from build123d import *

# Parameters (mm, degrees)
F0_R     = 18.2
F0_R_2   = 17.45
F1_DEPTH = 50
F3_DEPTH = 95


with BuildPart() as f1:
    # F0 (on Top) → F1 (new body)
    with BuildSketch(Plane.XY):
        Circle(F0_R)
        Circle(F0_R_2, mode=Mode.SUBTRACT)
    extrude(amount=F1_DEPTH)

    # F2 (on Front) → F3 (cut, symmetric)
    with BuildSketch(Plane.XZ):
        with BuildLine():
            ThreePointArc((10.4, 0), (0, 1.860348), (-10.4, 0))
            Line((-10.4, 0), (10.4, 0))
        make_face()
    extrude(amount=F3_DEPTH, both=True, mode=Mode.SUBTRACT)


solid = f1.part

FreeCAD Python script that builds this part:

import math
import FreeCAD as App
import Part
import Sketcher
from FreeCAD import Vector

doc = App.newDocument("Part")
body = doc.addObject("PartDesign::Body", "Body")

# Sketch on XY plane
sketch1 = doc.addObject("Sketcher::SketchObject", "Sketch")
body.addObject(sketch1)
sketch1.AttachmentSupport = (doc.XY_Plane, [""])
sketch1.MapMode = "FlatFace"
sketch1.addGeometry(Part.Circle(Vector(0, 0, 0), Vector(0, 0, 1), 18.2), False)
sketch1.addGeometry(Part.Circle(Vector(0, 0, 0), Vector(0, 0, 1), 17.45), False)
sketch1.addConstraint(Sketcher.Constraint("Coincident", 0, 3, -1, 1))
sketch1.addConstraint(Sketcher.Constraint("Coincident", 1, 3, -1, 1))
sketch1.addConstraint(Sketcher.Constraint("Diameter", 0, 36.4))
sketch1.addConstraint(Sketcher.Constraint("Diameter", 1, 34.9))
pad1 = doc.addObject("PartDesign::Pad", "Pad")
body.addObject(pad1)
pad1.Profile = sketch1
pad1.Length = 50

# Sketch on XZ plane
sketch2 = doc.addObject("Sketcher::SketchObject", "Sketch001")
body.addObject(sketch2)
sketch2.AttachmentSupport = (doc.XZ_Plane, [""])
sketch2.MapMode = "FlatFace"
sketch2.addGeometry(Part.ArcOfCircle(Part.Circle(Vector(0, -28.139656, 0), Vector(0, 0, 1), 30.000004), math.radians(69.716434), math.radians(110.283566)), False)
sketch2.addGeometry(Part.LineSegment(Vector(-10.4, 0, 0), Vector(10.4, 0, 0)), False)
sketch2.addConstraint(Sketcher.Constraint("Coincident", 0, 1, 1, 2))
sketch2.addConstraint(Sketcher.Constraint("Coincident", 1, 1, 0, 2))
sketch2.addConstraint(Sketcher.Constraint("Horizontal", 1))
sketch2.addConstraint(Sketcher.Constraint("Symmetric", 0, 1, 1, 1, -1, 1))
sketch2.addConstraint(Sketcher.Constraint("DistanceX", 1, 1, 1, 2, 20.8))
sketch2.addConstraint(Sketcher.Constraint("Radius", 0, 30.000004))
pocket1 = doc.addObject("PartDesign::Pocket", "Pocket")
body.addObject(pocket1)
pocket1.Profile = sketch2
pocket1.Length = 190
pocket1.Midplane = True

doc.recompute()
